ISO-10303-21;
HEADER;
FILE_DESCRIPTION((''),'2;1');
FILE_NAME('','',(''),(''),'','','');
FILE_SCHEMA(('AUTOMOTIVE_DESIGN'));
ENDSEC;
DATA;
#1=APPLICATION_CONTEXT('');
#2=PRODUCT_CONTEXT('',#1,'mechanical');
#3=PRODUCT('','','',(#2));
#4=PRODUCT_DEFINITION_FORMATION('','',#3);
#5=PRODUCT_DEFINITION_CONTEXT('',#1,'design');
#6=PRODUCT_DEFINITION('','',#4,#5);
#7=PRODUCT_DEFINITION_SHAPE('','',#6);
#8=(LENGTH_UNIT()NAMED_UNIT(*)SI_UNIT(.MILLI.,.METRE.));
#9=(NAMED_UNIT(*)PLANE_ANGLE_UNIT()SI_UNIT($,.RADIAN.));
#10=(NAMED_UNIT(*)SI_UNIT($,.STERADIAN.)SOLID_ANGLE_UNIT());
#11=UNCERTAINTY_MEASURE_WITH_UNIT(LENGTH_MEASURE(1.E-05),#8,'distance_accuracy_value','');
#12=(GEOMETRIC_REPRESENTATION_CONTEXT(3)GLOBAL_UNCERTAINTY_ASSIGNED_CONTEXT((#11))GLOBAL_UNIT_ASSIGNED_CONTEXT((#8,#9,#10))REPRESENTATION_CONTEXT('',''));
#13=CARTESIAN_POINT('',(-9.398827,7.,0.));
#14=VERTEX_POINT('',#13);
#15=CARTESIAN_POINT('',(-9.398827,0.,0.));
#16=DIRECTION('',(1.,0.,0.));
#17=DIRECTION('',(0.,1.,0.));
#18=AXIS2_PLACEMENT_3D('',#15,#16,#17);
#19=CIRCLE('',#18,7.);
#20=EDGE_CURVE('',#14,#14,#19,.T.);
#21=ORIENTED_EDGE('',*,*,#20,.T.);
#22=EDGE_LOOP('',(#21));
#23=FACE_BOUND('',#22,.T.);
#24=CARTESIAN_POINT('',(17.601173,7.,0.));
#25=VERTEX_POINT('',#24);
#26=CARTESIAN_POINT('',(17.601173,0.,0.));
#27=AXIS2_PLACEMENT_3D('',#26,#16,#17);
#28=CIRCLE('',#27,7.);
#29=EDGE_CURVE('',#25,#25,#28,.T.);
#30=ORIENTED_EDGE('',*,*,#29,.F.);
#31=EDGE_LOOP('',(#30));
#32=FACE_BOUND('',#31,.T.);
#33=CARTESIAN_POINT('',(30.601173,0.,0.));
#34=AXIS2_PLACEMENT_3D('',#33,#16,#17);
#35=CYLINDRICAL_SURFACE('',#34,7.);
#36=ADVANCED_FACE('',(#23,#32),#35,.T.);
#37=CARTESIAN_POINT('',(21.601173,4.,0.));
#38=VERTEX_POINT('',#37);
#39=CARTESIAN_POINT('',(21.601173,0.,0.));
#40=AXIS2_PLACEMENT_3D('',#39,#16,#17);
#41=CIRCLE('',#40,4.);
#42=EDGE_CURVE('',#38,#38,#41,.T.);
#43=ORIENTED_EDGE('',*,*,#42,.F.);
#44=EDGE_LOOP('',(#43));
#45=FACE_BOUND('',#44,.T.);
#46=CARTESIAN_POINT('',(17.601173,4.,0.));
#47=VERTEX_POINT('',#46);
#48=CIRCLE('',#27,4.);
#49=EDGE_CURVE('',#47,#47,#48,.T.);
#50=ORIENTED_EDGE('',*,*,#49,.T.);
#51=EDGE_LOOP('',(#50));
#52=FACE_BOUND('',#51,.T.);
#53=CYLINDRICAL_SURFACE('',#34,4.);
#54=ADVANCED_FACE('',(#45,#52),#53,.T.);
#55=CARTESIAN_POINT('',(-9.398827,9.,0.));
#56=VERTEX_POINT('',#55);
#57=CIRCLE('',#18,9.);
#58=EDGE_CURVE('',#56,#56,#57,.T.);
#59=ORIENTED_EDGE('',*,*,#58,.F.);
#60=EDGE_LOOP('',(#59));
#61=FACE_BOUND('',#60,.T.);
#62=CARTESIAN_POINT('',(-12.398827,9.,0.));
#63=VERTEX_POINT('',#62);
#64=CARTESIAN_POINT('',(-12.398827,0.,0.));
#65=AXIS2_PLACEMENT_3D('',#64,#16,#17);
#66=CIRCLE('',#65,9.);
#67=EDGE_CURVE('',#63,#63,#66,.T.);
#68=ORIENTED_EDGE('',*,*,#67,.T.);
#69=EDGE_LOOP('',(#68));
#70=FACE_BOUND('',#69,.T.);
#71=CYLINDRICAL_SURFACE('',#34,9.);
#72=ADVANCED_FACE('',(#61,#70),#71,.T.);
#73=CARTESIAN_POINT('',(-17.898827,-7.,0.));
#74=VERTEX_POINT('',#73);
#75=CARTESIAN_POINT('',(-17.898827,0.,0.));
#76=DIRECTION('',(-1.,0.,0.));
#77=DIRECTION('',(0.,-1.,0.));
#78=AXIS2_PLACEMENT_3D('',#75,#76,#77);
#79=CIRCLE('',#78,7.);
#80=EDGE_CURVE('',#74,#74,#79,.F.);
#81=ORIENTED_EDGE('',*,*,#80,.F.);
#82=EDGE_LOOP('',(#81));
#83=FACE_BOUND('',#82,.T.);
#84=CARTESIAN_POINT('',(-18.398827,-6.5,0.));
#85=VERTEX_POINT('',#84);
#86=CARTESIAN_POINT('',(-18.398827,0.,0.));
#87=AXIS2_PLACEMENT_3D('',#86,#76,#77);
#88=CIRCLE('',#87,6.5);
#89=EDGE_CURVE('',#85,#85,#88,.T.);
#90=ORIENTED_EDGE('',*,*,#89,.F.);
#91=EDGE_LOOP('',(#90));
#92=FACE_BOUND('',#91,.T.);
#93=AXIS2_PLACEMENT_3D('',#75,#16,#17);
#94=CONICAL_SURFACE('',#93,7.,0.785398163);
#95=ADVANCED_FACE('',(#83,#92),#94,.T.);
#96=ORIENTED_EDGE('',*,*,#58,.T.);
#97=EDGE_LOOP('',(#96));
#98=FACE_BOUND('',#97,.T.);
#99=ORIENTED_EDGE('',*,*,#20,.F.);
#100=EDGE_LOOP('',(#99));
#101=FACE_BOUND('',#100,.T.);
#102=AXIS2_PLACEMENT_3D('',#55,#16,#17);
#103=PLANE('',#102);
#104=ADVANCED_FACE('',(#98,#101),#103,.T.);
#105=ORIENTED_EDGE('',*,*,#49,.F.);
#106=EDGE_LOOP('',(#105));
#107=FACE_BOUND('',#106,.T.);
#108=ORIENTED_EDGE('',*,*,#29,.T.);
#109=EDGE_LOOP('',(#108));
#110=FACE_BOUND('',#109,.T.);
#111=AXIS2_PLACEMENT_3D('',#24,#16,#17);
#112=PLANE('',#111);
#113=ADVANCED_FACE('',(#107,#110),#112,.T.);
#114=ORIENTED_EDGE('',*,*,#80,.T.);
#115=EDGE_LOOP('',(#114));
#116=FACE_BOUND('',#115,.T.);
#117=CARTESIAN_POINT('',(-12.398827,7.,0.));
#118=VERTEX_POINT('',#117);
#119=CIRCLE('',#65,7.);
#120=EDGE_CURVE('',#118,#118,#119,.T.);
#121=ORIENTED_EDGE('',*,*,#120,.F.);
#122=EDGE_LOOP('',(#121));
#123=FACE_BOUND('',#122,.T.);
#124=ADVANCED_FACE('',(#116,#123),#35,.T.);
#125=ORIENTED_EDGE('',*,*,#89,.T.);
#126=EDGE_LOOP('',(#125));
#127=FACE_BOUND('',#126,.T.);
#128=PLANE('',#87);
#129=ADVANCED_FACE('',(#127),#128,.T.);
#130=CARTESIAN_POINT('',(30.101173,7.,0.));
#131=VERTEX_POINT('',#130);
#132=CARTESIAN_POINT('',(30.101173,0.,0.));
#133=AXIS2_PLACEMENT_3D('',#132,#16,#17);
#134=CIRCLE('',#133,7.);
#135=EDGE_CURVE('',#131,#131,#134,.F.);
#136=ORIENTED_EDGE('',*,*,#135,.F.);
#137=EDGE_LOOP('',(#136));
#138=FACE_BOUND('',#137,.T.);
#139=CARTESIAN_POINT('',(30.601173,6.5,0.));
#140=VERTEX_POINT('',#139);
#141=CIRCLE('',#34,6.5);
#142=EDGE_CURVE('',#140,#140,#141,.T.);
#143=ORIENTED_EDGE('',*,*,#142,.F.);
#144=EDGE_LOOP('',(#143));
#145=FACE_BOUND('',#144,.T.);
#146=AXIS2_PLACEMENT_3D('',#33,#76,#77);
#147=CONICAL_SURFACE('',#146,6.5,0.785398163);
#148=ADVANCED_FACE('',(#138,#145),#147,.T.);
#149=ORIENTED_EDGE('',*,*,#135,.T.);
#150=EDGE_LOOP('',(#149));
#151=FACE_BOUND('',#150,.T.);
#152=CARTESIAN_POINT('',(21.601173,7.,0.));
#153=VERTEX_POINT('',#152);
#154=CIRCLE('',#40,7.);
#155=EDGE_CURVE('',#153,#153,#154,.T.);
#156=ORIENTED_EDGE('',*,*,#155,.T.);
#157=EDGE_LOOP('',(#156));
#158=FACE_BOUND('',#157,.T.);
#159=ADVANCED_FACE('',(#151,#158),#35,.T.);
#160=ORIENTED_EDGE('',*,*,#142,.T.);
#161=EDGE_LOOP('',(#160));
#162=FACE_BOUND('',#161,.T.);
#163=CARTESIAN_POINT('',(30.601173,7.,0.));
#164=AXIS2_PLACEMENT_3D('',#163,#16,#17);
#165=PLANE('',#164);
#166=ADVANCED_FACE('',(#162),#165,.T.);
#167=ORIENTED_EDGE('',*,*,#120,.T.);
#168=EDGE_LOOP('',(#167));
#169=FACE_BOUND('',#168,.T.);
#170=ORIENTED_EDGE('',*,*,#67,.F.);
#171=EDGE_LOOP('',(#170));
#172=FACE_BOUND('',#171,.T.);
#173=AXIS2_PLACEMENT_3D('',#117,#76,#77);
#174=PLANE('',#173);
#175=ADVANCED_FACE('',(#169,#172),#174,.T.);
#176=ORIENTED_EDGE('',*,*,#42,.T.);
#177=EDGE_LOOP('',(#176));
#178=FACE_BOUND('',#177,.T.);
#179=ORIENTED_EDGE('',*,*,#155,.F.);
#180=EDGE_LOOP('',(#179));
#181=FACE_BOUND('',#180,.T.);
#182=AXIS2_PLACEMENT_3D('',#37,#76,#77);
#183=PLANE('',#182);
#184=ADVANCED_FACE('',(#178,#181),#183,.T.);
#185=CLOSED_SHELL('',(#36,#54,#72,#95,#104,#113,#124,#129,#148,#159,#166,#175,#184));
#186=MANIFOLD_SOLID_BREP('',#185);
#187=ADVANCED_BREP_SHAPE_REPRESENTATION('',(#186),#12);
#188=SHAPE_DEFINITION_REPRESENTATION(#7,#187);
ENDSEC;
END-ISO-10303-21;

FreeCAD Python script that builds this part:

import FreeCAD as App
import Part
import Sketcher


def edges_at(feature, points):
    """Names of the edges that pass closest to the given points."""
    edges = feature.Shape.Edges
    near = lambda p: min(range(len(edges)), key=lambda i: edges[i].distToShape(Part.Vertex(*p))[0])
    return sorted({f"Edge{near(p) + 1}" for p in points})


def add_polygon(sketch, points):
    """Adds a closed chain of lines whose ends are joined by coincident constraints."""
    first, n = sketch.GeometryCount, len(points)
    for a, b in zip(points, points[1:] + points[:1]):
        sketch.addGeometry(Part.LineSegment(App.Vector(*a, 0), App.Vector(*b, 0)), False)
    for i in range(n):
        sketch.addConstraint(Sketcher.Constraint("Coincident", first + i, 2, first + (i + 1) % n, 1))

doc = App.newDocument("Part")
params = doc.addObject("Spreadsheet::Sheet", "Params")
for row, (alias, value) in enumerate([
    ("sketch1_width", "49 mm"),
    ("sketch1_width2", "9 mm"),
    ("sketch1_width3", "4 mm"),
    ("sketch1_width4", "27 mm"),
    ("sketch1_width5", "3 mm"),
    ("revolution_angle", "360 deg"),
    ("chamfer_size", "0.5 mm"),
], start=1):
    params.set(f"A{row}", alias)
    params.set(f"B{row}", "=" + value)
    params.setAlias(f"B{row}", alias)

body = doc.addObject("PartDesign::Body", "Body")

# Sketch on XY plane
sketch1 = body.newObject("Sketcher::SketchObject", "Sketch")
sketch1.AttachmentSupport = (doc.getObject("XY_Plane"), [""])
sketch1.MapMode = "FlatFace"
add_polygon(sketch1, [(-18.4, 7), (-18.4, 0), (30.6, 0), (30.6, 7), (21.6, 7), (21.6, 4), (17.6, 4), (17.6, 7), (-9.4, 7), (-9.4, 9), (-12.4, 9), (-12.4, 7)])  # lines 0-11
sketch1.addConstraint([
    Sketcher.Constraint("Vertical", 0),
    Sketcher.Constraint("Horizontal", 1),
    Sketcher.Constraint("Vertical", 2),
    Sketcher.Constraint("Horizontal", 3),
    Sketcher.Constraint("Vertical", 4),
    Sketcher.Constraint("Horizontal", 5),
    Sketcher.Constraint("Vertical", 6),
    Sketcher.Constraint("Horizontal", 7),
    Sketcher.Constraint("Vertical", 8),
    Sketcher.Constraint("Horizontal", 9),
    Sketcher.Constraint("Vertical", 10),
    Sketcher.Constraint("Horizontal", 11),
    Sketcher.Constraint("PointOnObject", 0, 2, -1),
    Sketcher.Constraint("Horizontal", 3, 2, 6, 2),
    Sketcher.Constraint("Horizontal", 7, 2, 10, 2),
    Sketcher.Constraint("Equal", 9, 4),
    Sketcher.Constraint("DistanceX", 1, 1, 1, 2, 49.0),
    Sketcher.Constraint("DistanceX", 3, 2, 3, 1, 9.0),
    Sketcher.Constraint("DistanceX", 5, 2, 5, 1, 4.0),
    Sketcher.Constraint("DistanceX", 7, 2, 7, 1, 27.0),
    Sketcher.Constraint("DistanceX", 9, 2, 9, 1, 3.0),
    Sketcher.Constraint("DistanceY", 0, 2, 0, 1, 7.0),
    Sketcher.Constraint("DistanceY", 8, 1, 8, 2, 2.0),
    Sketcher.Constraint("DistanceX", 0, 2, -1, 1, 18.398827),
])
sketch1.setExpression("Constraints[28]", "Params.sketch1_width")
sketch1.setExpression("Constraints[29]", "Params.sketch1_width2")
sketch1.setExpression("Constraints[30]", "Params.sketch1_width3")
sketch1.setExpression("Constraints[31]", "Params.sketch1_width4")
sketch1.setExpression("Constraints[32]", "Params.sketch1_width5")
revolution = body.newObject("PartDesign::Revolution", "Revolution")
revolution.Profile = sketch1
revolution.ReferenceAxis = (sketch1, ["H_Axis"])
revolution.setExpression("Angle", "Params.revolution_angle")
doc.recompute()

chamfer = body.newObject("PartDesign::Chamfer", "Chamfer")
chamfer.Base = (revolution, edges_at(revolution, [(-18.399, -7, 0), (30.601, -7, 0)]))
chamfer.setExpression("Size", "Params.chamfer_size")

doc.recompute()
